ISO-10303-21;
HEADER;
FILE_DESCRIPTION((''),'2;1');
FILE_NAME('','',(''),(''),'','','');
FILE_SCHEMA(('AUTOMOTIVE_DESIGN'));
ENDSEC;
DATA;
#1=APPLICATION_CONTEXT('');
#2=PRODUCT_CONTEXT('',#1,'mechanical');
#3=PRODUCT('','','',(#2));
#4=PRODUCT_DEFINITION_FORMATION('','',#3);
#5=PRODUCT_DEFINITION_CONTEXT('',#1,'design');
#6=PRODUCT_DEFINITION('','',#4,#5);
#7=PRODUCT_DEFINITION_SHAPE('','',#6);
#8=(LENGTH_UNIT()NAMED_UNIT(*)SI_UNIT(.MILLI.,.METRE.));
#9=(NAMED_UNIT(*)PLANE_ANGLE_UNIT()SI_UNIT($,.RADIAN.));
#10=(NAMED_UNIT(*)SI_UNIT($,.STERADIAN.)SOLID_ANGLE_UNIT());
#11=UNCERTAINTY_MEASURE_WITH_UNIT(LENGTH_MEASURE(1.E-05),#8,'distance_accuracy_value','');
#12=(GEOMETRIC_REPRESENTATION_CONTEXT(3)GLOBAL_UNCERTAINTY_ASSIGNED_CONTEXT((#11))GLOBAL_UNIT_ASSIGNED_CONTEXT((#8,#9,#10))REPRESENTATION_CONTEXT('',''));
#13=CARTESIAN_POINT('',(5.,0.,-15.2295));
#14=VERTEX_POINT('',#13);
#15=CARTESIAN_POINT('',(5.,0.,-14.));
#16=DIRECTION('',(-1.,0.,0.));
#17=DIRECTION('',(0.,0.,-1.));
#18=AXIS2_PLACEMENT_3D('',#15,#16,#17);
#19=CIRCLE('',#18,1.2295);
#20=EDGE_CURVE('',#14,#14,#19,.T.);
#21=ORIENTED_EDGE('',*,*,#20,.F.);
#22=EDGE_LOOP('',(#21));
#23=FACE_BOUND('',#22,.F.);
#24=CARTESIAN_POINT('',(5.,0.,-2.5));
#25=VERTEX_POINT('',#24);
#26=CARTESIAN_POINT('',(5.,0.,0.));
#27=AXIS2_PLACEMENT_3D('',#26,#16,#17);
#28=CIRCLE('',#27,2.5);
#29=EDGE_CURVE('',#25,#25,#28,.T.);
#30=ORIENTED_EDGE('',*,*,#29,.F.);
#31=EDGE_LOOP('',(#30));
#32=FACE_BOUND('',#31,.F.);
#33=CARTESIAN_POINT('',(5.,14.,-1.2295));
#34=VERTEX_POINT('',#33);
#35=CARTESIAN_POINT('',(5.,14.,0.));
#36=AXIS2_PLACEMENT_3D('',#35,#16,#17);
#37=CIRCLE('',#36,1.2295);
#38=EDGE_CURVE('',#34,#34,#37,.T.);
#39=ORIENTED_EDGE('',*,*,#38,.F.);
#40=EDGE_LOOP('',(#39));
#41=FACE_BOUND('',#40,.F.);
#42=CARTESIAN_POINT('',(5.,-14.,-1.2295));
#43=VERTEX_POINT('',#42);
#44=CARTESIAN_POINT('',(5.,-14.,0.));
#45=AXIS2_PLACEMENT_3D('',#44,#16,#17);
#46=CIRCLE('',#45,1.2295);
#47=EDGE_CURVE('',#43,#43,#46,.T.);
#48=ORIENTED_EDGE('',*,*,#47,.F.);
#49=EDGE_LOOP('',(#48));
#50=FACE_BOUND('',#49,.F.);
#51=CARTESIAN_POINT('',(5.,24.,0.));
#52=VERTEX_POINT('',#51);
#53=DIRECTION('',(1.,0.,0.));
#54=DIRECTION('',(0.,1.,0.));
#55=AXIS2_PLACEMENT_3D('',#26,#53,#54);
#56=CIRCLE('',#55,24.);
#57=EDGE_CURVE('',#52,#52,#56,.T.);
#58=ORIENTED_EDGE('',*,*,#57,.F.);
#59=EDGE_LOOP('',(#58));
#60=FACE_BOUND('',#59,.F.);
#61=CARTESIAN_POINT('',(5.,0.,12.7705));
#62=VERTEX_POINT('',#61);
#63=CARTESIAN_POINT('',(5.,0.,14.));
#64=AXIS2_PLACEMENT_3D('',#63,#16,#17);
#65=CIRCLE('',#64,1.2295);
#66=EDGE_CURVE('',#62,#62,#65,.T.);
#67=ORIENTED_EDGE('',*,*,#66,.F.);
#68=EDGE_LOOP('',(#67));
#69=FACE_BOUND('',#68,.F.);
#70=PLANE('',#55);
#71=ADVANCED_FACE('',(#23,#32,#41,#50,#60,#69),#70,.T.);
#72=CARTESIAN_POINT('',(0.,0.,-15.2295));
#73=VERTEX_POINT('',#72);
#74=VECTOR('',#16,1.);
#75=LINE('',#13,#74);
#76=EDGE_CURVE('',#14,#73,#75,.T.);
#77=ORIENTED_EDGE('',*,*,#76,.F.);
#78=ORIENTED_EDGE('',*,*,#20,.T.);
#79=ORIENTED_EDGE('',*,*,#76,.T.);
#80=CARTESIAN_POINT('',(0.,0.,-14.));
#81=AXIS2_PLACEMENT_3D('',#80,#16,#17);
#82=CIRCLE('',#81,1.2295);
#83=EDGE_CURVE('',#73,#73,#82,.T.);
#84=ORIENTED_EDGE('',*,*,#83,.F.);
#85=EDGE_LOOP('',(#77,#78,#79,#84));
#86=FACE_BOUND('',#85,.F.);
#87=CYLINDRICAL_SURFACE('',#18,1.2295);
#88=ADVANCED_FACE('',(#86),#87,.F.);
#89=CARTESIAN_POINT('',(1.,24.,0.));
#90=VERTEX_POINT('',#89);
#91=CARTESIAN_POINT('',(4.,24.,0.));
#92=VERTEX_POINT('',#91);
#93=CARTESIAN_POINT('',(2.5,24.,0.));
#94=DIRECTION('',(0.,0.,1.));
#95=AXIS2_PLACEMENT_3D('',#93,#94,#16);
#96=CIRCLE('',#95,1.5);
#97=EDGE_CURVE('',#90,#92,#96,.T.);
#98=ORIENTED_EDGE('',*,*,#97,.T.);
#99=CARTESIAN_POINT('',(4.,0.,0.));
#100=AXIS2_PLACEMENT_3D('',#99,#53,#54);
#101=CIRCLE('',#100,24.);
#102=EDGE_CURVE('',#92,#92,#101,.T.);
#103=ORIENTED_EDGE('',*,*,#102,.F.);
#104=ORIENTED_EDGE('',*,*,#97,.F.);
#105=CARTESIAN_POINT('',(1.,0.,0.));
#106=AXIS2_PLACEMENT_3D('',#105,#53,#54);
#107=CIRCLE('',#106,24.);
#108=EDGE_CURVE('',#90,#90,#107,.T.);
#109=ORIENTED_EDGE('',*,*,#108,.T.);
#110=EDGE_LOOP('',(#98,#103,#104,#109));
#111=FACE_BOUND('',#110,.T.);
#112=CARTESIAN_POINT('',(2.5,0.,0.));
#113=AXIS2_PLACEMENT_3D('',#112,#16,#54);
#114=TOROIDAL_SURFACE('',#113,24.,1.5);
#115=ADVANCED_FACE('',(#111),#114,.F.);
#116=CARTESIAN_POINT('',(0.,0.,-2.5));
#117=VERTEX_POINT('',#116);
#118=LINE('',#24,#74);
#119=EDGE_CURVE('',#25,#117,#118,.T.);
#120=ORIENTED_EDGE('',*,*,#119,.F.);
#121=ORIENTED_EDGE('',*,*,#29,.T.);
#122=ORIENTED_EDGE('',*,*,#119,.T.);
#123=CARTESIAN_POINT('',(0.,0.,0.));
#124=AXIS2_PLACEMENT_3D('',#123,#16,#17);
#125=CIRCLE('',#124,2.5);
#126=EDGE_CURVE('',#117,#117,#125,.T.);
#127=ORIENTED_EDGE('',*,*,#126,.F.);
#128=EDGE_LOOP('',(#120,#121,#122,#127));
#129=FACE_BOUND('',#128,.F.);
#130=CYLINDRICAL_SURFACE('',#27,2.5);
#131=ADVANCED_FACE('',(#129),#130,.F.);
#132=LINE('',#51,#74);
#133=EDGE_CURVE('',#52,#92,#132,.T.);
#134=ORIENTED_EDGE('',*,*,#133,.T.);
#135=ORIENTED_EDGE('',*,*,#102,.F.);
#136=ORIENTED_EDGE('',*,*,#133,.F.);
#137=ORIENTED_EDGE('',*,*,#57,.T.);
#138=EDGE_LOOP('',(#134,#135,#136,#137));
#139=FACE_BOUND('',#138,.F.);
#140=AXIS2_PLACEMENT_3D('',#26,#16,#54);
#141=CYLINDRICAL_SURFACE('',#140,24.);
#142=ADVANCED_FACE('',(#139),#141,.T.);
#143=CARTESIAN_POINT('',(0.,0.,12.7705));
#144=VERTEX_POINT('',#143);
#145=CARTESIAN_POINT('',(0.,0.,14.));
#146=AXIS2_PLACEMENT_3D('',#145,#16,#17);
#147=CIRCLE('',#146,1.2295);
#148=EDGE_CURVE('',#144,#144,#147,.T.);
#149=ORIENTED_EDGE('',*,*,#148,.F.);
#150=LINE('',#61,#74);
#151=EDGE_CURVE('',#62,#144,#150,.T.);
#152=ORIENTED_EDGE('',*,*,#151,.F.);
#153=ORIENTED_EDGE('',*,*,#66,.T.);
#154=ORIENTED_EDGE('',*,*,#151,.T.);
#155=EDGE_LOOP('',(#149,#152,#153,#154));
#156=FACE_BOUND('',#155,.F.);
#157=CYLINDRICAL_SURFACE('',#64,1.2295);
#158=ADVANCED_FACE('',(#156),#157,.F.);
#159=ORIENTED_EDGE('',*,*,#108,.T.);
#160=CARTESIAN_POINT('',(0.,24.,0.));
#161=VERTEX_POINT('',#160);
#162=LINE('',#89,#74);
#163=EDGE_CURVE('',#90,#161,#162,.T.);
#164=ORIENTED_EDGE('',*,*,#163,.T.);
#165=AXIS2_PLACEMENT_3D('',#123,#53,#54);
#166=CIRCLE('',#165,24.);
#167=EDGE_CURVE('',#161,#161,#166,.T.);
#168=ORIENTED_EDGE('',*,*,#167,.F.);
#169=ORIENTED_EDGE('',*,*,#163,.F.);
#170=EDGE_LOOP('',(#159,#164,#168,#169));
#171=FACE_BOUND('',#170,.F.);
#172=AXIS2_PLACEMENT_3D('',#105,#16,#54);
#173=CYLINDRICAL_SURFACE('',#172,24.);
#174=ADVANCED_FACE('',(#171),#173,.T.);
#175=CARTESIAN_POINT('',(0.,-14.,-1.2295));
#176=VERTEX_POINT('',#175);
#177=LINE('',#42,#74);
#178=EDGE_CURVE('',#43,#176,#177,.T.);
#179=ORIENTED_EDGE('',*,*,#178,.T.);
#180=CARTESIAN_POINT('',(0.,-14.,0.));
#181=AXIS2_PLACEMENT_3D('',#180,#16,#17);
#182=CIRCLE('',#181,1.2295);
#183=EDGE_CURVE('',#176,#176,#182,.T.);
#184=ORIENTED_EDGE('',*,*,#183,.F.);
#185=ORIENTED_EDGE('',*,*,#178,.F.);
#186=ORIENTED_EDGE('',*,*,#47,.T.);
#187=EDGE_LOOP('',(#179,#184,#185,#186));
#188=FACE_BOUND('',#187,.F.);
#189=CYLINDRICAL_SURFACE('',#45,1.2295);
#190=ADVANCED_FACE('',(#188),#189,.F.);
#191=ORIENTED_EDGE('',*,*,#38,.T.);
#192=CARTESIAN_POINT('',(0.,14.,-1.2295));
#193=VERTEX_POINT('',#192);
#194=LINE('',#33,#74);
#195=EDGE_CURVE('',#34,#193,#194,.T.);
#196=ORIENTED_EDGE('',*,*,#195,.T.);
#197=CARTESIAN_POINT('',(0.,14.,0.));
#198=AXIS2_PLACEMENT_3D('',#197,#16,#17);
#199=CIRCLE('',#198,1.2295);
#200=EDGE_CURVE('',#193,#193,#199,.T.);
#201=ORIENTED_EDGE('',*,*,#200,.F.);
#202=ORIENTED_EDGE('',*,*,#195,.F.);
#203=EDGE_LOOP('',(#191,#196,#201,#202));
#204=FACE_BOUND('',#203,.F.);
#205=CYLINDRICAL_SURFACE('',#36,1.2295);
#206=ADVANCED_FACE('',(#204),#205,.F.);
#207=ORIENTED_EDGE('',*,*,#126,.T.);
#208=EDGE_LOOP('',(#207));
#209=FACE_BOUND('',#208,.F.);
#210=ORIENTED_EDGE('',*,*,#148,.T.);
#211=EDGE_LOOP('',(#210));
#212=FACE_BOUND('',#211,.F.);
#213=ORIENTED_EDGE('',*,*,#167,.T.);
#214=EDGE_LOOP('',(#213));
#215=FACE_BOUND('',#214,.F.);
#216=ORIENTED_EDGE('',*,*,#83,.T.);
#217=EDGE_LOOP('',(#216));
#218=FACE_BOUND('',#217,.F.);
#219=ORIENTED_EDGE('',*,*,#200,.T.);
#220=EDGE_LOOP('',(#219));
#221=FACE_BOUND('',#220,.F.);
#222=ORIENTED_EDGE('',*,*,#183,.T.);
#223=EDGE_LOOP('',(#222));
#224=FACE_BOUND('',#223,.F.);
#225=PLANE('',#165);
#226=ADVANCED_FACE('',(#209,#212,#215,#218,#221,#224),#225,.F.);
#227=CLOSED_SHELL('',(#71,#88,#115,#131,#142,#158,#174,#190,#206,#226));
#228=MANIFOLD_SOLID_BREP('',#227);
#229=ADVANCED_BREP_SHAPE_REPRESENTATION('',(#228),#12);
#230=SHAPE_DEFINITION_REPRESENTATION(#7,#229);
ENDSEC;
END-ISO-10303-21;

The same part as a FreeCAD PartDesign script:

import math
import FreeCAD as App
import Part
import Sketcher
from FreeCAD import Vector

doc = App.newDocument("Part")
body = doc.addObject("PartDesign::Body", "Body")

sketch1 = body.newObject("Sketcher::SketchObject", "Sketch")
sketch1.AttachmentSupport = (doc.getObject("XY_Plane"), [""])
sketch1.MapMode = "FlatFace"
sketch1.addGeometry([
    Part.LineSegment(Vector(0, 24, 0), Vector(0, 0, 0)),
    Part.LineSegment(Vector(0, 0, 0), Vector(5, 0, 0)),
    Part.LineSegment(Vector(5, 0, 0), Vector(5, 24, 0)),
    Part.LineSegment(Vector(5, 24, 0), Vector(4, 24, 0)),
    Part.ArcOfCircle(Part.Circle(Vector(2.5, 24, 0), Vector(0, 0, 1), 1.5), math.radians(180), math.radians(360)),
    Part.LineSegment(Vector(1, 24, 0), Vector(0, 24, 0)),
], False)
sketch1.addConstraint([
    Sketcher.Constraint("Coincident", 0, 2, 1, 1),
    Sketcher.Constraint("Coincident", 1, 2, 2, 1),
    Sketcher.Constraint("Coincident", 2, 2, 3, 1),
    Sketcher.Constraint("Coincident", 3, 2, 4, 2),
    Sketcher.Constraint("Coincident", 4, 1, 5, 1),
    Sketcher.Constraint("Coincident", 5, 2, 0, 1),
    Sketcher.Constraint("Vertical", 0),
    Sketcher.Constraint("Horizontal", 1),
    Sketcher.Constraint("Vertical", 2),
    Sketcher.Constraint("Horizontal", 3),
    Sketcher.Constraint("Horizontal", 5),
    Sketcher.Constraint("Coincident", 0, 2, -1, 1),
    Sketcher.Constraint("Horizontal", 4, 3, 2, 2),
    Sketcher.Constraint("Horizontal", 3, 2, 4, 1),
    Sketcher.Constraint("Equal", 3, 5),
    Sketcher.Constraint("Radius", 4, 1.5),
    Sketcher.Constraint("DistanceX", 1, 1, 1, 2, 5.0),
    Sketcher.Constraint("DistanceY", 0, 2, 0, 1, 24.0),
])
revolution = body.newObject("PartDesign::Revolution", "Revolution")
revolution.Profile = sketch1
revolution.ReferenceAxis = (sketch1, ["H_Axis"])
revolution.Angle = 360

sketch2 = body.newObject("Sketcher::SketchObject", "Sketch001")
sketch2.AttachmentSupport = (doc.getObject("YZ_Plane"), [""])
sketch2.MapMode = "FlatFace"
sketch2.AttachmentOffset = App.Placement(Vector(0, 0, 5), App.Rotation())
sketch2.addGeometry(Part.Circle(Vector(0, 0, 0), Vector(0, 0, 1), 2.5), False)
sketch2.addConstraint([
    Sketcher.Constraint("Coincident", 0, 3, -1, 1),
    Sketcher.Constraint("Diameter", 0, 5.0),
])
doc.recompute()
hole = body.newObject("PartDesign::Hole", "Hole")
hole.Profile = sketch2
hole.ThreadType = "None"
hole.Diameter = 5
hole.DepthType = "ThroughAll"

sketch3 = body.newObject("Sketcher::SketchObject", "Sketch002")
sketch3.AttachmentSupport = (doc.getObject("YZ_Plane"), [""])
sketch3.MapMode = "FlatFace"
sketch3.AttachmentOffset = App.Placement(Vector(0, 0, 5), App.Rotation())
sketch3.addGeometry([
    Part.Circle(Vector(14, 0, 0), Vector(0, 0, 1), 1.2295),
    Part.Circle(Vector(0, 14, 0), Vector(0, 0, 1), 1.2295),
    Part.Circle(Vector(-14, 0, 0), Vector(0, 0, 1), 1.2295),
    Part.Circle(Vector(0, -14, 0), Vector(0, 0, 1), 1.2295),
], False)
sketch3.addConstraint([
    Sketcher.Constraint("Equal", 0, 1),
    Sketcher.Constraint("Equal", 1, 2),
    Sketcher.Constraint("Equal", 2, 3),
    Sketcher.Constraint("Symmetric", 0, 3, 2, 3, -1, 1),
    Sketcher.Constraint("Symmetric", 1, 3, 3, 3, -1, 1),
    Sketcher.Constraint("PointOnObject", 0, 3, -1),
    Sketcher.Constraint("PointOnObject", 1, 3, -2),
    Sketcher.Constraint("Diameter", 0, 2.459),
    Sketcher.Constraint("DistanceX", -1, 1, 0, 3, 14.0),
    Sketcher.Constraint("DistanceY", -1, 1, 1, 3, 14.0),
])
doc.recompute()
hole2 = body.newObject("PartDesign::Hole", "Hole001")
hole2.Profile = sketch3
hole2.ThreadType = "None"
hole2.Diameter = 2.459
hole2.DepthType = "ThroughAll"

doc.recompute()
